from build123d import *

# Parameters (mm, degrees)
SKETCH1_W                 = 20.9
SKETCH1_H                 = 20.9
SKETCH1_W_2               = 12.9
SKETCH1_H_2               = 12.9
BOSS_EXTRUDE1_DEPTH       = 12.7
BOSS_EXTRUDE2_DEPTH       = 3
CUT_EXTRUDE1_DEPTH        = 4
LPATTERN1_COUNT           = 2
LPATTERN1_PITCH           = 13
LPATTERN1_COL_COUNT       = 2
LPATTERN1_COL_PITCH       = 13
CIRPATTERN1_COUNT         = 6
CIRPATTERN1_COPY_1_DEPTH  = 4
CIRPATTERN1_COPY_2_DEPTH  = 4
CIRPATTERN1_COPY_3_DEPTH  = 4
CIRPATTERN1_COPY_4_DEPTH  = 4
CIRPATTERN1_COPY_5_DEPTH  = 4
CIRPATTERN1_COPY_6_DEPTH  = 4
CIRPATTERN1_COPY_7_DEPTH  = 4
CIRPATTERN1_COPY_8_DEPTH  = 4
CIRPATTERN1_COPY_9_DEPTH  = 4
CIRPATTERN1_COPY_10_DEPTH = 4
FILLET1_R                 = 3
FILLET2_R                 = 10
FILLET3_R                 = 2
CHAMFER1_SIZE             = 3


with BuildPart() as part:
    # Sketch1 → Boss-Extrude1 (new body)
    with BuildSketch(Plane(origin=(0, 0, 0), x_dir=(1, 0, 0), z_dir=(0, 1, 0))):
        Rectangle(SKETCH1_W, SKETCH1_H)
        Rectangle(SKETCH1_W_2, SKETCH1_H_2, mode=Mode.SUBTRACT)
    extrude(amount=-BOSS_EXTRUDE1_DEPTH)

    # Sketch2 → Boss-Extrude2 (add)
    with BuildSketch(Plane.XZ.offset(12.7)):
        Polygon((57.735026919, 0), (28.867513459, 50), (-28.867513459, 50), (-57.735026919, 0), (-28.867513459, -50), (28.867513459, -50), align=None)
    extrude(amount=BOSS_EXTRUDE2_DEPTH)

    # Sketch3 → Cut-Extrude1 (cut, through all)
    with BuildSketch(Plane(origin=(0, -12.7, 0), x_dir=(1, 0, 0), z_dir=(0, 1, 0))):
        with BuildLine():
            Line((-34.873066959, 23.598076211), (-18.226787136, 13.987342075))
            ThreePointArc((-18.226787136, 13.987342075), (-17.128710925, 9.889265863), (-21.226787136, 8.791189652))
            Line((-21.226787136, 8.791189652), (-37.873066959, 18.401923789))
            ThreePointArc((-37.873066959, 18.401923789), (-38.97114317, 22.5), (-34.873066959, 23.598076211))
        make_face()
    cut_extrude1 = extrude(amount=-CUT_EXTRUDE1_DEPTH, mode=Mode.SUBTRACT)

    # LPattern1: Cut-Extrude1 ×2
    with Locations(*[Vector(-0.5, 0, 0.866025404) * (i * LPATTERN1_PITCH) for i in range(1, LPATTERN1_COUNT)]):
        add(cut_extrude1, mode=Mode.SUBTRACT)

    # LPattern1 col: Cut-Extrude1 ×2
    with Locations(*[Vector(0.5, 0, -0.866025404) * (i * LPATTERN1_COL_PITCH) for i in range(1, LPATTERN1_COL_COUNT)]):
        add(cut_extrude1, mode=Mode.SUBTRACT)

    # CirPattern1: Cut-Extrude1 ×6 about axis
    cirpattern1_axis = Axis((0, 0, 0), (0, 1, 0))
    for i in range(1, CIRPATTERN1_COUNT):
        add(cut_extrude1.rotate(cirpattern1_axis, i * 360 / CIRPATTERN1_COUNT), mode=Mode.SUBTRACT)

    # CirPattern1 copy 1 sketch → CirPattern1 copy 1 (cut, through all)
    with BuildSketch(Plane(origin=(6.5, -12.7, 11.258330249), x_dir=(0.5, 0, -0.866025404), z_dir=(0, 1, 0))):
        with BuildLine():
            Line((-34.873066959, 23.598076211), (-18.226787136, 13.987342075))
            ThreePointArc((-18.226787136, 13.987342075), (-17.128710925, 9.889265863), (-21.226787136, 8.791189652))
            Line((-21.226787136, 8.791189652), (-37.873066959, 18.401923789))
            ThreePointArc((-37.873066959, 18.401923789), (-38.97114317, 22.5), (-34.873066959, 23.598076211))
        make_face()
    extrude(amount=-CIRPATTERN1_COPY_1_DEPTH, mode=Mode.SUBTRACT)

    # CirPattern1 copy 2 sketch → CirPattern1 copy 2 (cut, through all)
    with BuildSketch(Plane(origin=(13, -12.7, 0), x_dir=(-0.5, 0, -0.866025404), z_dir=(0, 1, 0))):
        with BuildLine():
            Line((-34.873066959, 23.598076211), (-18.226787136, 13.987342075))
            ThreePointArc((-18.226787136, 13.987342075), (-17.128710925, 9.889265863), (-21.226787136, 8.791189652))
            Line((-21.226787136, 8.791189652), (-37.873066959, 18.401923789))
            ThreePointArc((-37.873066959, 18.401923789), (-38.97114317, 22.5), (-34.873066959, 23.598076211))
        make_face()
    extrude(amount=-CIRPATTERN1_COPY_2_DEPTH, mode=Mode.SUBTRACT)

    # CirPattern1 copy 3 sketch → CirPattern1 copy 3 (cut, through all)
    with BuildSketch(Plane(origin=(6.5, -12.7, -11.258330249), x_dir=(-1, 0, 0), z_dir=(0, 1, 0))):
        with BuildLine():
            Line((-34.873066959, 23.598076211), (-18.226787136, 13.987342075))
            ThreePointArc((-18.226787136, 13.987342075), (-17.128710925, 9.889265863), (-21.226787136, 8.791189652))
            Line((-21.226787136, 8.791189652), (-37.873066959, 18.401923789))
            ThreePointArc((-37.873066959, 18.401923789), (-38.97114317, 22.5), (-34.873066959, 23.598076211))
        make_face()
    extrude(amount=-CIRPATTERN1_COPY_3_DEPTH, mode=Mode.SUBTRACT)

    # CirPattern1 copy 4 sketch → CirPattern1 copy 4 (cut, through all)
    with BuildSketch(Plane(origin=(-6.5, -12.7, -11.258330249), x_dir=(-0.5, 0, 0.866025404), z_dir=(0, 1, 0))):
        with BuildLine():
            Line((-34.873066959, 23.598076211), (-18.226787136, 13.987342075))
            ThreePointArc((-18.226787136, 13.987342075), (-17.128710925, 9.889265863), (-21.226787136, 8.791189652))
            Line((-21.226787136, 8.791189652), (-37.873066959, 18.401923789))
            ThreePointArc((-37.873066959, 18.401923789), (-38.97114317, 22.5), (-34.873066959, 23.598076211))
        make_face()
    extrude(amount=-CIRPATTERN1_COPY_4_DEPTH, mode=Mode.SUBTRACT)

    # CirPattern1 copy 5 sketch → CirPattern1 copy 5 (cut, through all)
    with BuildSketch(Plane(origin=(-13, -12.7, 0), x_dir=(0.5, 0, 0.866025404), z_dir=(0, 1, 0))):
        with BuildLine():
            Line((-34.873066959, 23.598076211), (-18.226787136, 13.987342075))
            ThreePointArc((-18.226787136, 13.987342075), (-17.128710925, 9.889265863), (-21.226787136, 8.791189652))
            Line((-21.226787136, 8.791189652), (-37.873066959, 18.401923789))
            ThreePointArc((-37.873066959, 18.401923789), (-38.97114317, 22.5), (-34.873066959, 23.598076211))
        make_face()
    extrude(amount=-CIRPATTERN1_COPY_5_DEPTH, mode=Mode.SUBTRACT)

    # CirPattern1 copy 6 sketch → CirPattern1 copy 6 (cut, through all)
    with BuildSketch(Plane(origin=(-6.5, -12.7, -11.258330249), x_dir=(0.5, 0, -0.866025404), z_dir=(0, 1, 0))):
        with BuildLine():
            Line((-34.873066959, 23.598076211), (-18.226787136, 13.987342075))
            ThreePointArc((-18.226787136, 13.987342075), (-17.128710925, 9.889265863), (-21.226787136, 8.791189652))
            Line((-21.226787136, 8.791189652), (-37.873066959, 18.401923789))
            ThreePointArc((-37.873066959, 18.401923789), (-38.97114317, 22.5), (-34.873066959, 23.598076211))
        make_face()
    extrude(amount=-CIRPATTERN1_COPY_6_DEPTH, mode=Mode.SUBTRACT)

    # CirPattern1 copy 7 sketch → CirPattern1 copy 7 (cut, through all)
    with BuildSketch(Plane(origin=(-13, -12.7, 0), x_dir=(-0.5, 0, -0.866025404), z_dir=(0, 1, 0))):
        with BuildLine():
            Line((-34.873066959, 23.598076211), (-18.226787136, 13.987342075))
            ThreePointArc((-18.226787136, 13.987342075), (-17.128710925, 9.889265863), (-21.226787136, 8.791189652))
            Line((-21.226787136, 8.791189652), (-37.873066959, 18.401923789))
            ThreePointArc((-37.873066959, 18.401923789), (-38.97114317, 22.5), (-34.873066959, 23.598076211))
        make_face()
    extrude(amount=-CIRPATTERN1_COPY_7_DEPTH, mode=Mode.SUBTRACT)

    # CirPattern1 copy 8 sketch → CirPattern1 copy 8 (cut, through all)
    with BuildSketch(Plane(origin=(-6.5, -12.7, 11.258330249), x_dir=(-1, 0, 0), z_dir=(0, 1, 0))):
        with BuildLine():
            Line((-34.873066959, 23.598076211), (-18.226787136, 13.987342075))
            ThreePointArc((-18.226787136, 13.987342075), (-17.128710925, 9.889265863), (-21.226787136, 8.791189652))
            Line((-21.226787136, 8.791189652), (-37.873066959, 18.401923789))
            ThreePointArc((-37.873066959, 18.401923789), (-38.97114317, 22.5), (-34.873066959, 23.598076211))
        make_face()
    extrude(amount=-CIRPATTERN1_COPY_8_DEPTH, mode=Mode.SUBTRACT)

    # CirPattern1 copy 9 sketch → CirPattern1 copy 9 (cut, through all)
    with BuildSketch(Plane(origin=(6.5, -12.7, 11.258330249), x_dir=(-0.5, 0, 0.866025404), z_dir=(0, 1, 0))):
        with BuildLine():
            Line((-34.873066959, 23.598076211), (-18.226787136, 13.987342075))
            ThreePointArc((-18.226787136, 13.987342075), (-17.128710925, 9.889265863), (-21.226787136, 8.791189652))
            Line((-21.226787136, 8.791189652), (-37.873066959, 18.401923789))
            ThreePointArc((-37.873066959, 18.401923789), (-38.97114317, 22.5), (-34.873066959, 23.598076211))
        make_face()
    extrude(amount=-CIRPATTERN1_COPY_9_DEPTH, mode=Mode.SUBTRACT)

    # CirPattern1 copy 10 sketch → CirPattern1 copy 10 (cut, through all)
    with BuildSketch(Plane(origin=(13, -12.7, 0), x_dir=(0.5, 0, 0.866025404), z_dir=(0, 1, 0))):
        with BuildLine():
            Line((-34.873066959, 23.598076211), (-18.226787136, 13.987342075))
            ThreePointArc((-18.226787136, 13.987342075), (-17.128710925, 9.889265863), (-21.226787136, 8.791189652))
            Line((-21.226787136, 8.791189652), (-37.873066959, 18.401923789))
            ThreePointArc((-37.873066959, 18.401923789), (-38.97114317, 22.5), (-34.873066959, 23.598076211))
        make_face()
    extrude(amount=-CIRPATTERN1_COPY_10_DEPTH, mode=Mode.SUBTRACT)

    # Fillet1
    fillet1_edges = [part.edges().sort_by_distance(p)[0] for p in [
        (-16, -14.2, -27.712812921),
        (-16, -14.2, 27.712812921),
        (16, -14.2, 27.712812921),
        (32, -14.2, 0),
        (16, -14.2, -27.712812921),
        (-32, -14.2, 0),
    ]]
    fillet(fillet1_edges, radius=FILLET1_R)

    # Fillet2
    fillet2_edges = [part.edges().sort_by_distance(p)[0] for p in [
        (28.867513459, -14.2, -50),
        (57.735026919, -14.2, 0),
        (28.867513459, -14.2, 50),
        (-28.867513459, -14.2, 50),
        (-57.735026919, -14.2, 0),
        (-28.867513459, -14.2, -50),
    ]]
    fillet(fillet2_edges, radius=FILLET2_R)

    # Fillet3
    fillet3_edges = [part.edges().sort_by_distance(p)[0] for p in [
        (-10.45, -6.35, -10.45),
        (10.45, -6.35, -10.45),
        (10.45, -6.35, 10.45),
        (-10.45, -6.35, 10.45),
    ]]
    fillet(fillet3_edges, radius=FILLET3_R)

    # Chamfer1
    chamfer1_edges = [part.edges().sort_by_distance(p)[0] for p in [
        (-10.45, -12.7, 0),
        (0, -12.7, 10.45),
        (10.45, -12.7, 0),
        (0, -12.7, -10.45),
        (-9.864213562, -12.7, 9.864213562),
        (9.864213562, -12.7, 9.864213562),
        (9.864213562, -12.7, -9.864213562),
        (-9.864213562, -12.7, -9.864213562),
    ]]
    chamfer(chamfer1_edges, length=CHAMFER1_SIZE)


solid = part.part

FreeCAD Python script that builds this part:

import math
import FreeCAD as App
import Part
import Sketcher
Q = App.Units.Quantity


def edges_at(feature, points):
    """Names of the edges that pass closest to the given points."""
    edges = feature.Shape.Edges
    near = lambda p: min(range(len(edges)), key=lambda i: edges[i].distToShape(Part.Vertex(*p))[0])
    return sorted({f"Edge{near(p) + 1}" for p in points})

doc = App.newDocument("Part")
body = doc.addObject("PartDesign::Body", "Body")

sketch1 = body.newObject("Sketcher::SketchObject", "Sketch")
sketch1.AttachmentSupport = (doc.getObject("XZ_Plane"), [""])
sketch1.MapMode = "FlatFace"
sketch1.addGeometry([
    Part.LineSegment(App.Vector(-10, -10, 0), App.Vector(-10, 10, 0)),
    Part.LineSegment(App.Vector(-10, 10, 0), App.Vector(10, 10, 0)),
    Part.LineSegment(App.Vector(10, 10, 0), App.Vector(10, -10, 0)),
    Part.LineSegment(App.Vector(10, -10, 0), App.Vector(-10, -10, 0)),
    Part.LineSegment(App.Vector(6, 6, 0), App.Vector(-6, 6, 0)),
    Part.LineSegment(App.Vector(-6, 6, 0), App.Vector(-6, -6, 0)),
    Part.LineSegment(App.Vector(-6, -6, 0), App.Vector(6, -6, 0)),
    Part.LineSegment(App.Vector(6, -6, 0), App.Vector(6, 6, 0)),
], False)
sketch1.addConstraint([
    Sketcher.Constraint("Coincident", 0, 2, 1, 1),
    Sketcher.Constraint("Coincident", 1, 2, 2, 1),
    Sketcher.Constraint("Coincident", 2, 2, 3, 1),
    Sketcher.Constraint("Coincident", 3, 2, 0, 1),
    Sketcher.Constraint("Coincident", 4, 2, 5, 1),
    Sketcher.Constraint("Coincident", 5, 2, 6, 1),
    Sketcher.Constraint("Coincident", 6, 2, 7, 1),
    Sketcher.Constraint("Coincident", 7, 2, 4, 1),
    Sketcher.Constraint("Vertical", 0),
    Sketcher.Constraint("Horizontal", 1),
    Sketcher.Constraint("Vertical", 2),
    Sketcher.Constraint("Horizontal", 3),
    Sketcher.Constraint("Horizontal", 4),
    Sketcher.Constraint("Vertical", 5),
    Sketcher.Constraint("Horizontal", 6),
    Sketcher.Constraint("Vertical", 7),
    Sketcher.Constraint("Symmetric", 0, 2, 2, 2, -1, 1),
    Sketcher.Constraint("Symmetric", 4, 2, 6, 2, -1, 1),
    Sketcher.Constraint("Equal", 3, 0),
    Sketcher.Constraint("Equal", 6, 5),
    Sketcher.Constraint("DistanceX", 1, 1, 1, 2, 20.9),
    Sketcher.Constraint("DistanceX", 4, 2, 4, 1, 12.9),
])
pad1 = body.newObject("PartDesign::Pad", "Pad")
pad1.Profile = sketch1
pad1.Length = 12.7

sketch2 = body.newObject("Sketcher::SketchObject", "Sketch001")
sketch2.AttachmentSupport = (doc.getObject("XZ_Plane"), [""])
sketch2.MapMode = "FlatFace"
sketch2.AttachmentOffset = App.Placement(App.Vector(0, 0, 12.7), App.Rotation())
sketch2.addGeometry([
    Part.LineSegment(App.Vector(58, 0, 0), App.Vector(29, 50, 0)),
    Part.LineSegment(App.Vector(29, 50, 0), App.Vector(-29, 50, 0)),
    Part.LineSegment(App.Vector(-29, 50, 0), App.Vector(-58, 0, 0)),
    Part.LineSegment(App.Vector(-58, 0, 0), App.Vector(-29, -50, 0)),
    Part.LineSegment(App.Vector(-29, -50, 0), App.Vector(29, -50, 0)),
    Part.LineSegment(App.Vector(29, -50, 0), App.Vector(58, 0, 0)),
], False)
sketch2.addConstraint([
    Sketcher.Constraint("Coincident", 0, 2, 1, 1),
    Sketcher.Constraint("Coincident", 1, 2, 2, 1),
    Sketcher.Constraint("Coincident", 2, 2, 3, 1),
    Sketcher.Constraint("Coincident", 3, 2, 4, 1),
    Sketcher.Constraint("Coincident", 4, 2, 5, 1),
    Sketcher.Constraint("Coincident", 5, 2, 0, 1),
    Sketcher.Constraint("Horizontal", 1),
    Sketcher.Constraint("Horizontal", 4),
    Sketcher.Constraint("Symmetric", 0, 2, 3, 2, -1, 1),
    Sketcher.Constraint("Symmetric", 2, 2, 5, 2, -1, 1),
    Sketcher.Constraint("PointOnObject", 2, 2, -1),
    Sketcher.Constraint("Parallel", 2, 5),
    Sketcher.Constraint("Vertical", 1, 2, 3, 2),
    Sketcher.Constraint("Angle", 0, Q("120 deg")),
    Sketcher.Constraint("DistanceY", -1, 1, 0, 2, 50.0),
    Sketcher.Constraint("DistanceX", 1, 2, 1, 1, 57.735027),
])
pad2 = body.newObject("PartDesign::Pad", "Pad001")
pad2.Profile = sketch2
pad2.Length = 3

sketch3 = body.newObject("Sketcher::SketchObject", "Sketch002")
sketch3.AttachmentSupport = (doc.getObject("XZ_Plane"), [""])
sketch3.MapMode = "FlatFace"
sketch3.AttachmentOffset = App.Placement(App.Vector(0, 0, 12.7), App.Rotation())
sketch3.addGeometry([
    Part.LineSegment(App.Vector(-18.2, -14, 0), App.Vector(-34.9, -23.6, 0)),
    Part.ArcOfCircle(Part.Circle(App.Vector(-36.4, -21, 0), App.Vector(0, 0, 1), 3), math.radians(120), math.radians(300)),
    Part.LineSegment(App.Vector(-37.9, -18.4, 0), App.Vector(-21.2, -8.8, 0)),
    Part.ArcOfCircle(Part.Circle(App.Vector(-19.7, -11.4, 0), App.Vector(0, 0, 1), 3), math.radians(-60), math.radians(120)),
], False)
sketch3.addConstraint([
    Sketcher.Constraint("Tangent", 0, 2, 1, 2),
    Sketcher.Constraint("Tangent", 1, 1, 2, 1),
    Sketcher.Constraint("Tangent", 2, 2, 3, 2),
    Sketcher.Constraint("Tangent", 3, 1, 0, 1),
    Sketcher.Constraint("Equal", 1, 3),
    Sketcher.Constraint("Radius", 1, 3.0),
    Sketcher.Constraint("Angle", 0, Q("-150 deg")),
    Sketcher.Constraint("DistanceY", 1, 3, -1, 1, 21.0),
    Sketcher.Constraint("Distance", 0, 19.221468),
    Sketcher.Constraint("DistanceX", 1, 3, -1, 1, 36.373067),
])
pocket1 = body.newObject("PartDesign::Pocket", "Pocket")
pocket1.Profile = sketch3
pocket1.Type = "ThroughAll"
pocket1.Reversed = True
doc.recompute()

datumline = body.newObject("PartDesign::Line", "DatumLine")
datumline.Placement = App.Placement(App.Vector(0, 0, 0), App.Rotation(App.Vector(0, 0, 1), App.Vector(-0.5, 0, 0.866025404)))
linearpattern = body.newObject("PartDesign::LinearPattern", "LinearPattern")
linearpattern.Originals = [pocket1]
linearpattern.Direction = (datumline, [""])
linearpattern.Mode = "offset"
linearpattern.Offset = 13
linearpattern.Occurrences = 2
body.Tip = linearpattern
doc.recompute()

datumline2 = body.newObject("PartDesign::Line", "DatumLine001")
datumline2.Placement = App.Placement(App.Vector(0, 0, 0), App.Rotation(App.Vector(0, 0, 1), App.Vector(0.5, 0, -0.866025404)))
linearpattern2 = body.newObject("PartDesign::LinearPattern", "LinearPattern001")
linearpattern2.Originals = [pocket1]
linearpattern2.Direction = (datumline2, [""])
linearpattern2.Mode = "offset"
linearpattern2.Offset = 13
linearpattern2.Occurrences = 2
body.Tip = linearpattern2
doc.recompute()

polarpattern = body.newObject("PartDesign::PolarPattern", "PolarPattern")
polarpattern.Originals = [pocket1]
polarpattern.Axis = (doc.getObject("Y_Axis"), [""])
polarpattern.Angle = 360
polarpattern.Occurrences = 6
body.Tip = polarpattern

sketch4 = body.newObject("Sketcher::SketchObject", "Sketch003")
sketch4.AttachmentSupport = (doc.getObject("XZ_Plane"), [""])
sketch4.MapMode = "FlatFace"
sketch4.AttachmentOffset = App.Placement(App.Vector(0, 0, 12.7), App.Rotation())
sketch4.addGeometry([
    Part.LineSegment(App.Vector(-14.7, 20, 0), App.Vector(-31.4, 29.7, 0)),
    Part.ArcOfCircle(Part.Circle(App.Vector(-29.9, 32.3, 0), App.Vector(0, 0, 1), 3), math.radians(60), math.radians(240)),
    Part.LineSegment(App.Vector(-28.4, 34.9, 0), App.Vector(-11.7, 25.2, 0)),
    Part.ArcOfCircle(Part.Circle(App.Vector(-13.2, 22.6, 0), App.Vector(0, 0, 1), 3), math.radians(-120), math.radians(60)),
], False)
sketch4.addConstraint([
    Sketcher.Constraint("Tangent", 0, 2, 1, 2),
    Sketcher.Constraint("Tangent", 1, 1, 2, 1),
    Sketcher.Constraint("Tangent", 2, 2, 3, 2),
    Sketcher.Constraint("Tangent", 3, 1, 0, 1),
    Sketcher.Constraint("Equal", 1, 3),
    Sketcher.Constraint("Radius", 1, 3.0),
    Sketcher.Constraint("Angle", 0, Q("150 deg")),
    Sketcher.Constraint("Distance", 0, 19.221468),
    Sketcher.Constraint("DistanceY", -1, 1, 1, 3, 32.25833),
    Sketcher.Constraint("DistanceX", 1, 3, -1, 1, 29.873067),
])
pocket2 = body.newObject("PartDesign::Pocket", "Pocket001")
pocket2.Profile = sketch4
pocket2.Type = "ThroughAll"
pocket2.Reversed = True

sketch5 = body.newObject("Sketcher::SketchObject", "Sketch004")
sketch5.AttachmentSupport = (doc.getObject("XZ_Plane"), [""])
sketch5.MapMode = "FlatFace"
sketch5.AttachmentOffset = App.Placement(App.Vector(0, 0, 12.7), App.Rotation())
sketch5.addGeometry([
    Part.LineSegment(App.Vector(10, 22.8, 0), App.Vector(10, 42, 0)),
    Part.ArcOfCircle(Part.Circle(App.Vector(13, 42, 0), App.Vector(0, 0, 1), 3), math.radians(0), math.radians(180)),
    Part.LineSegment(App.Vector(16, 42, 0), App.Vector(16, 22.8, 0)),
    Part.ArcOfCircle(Part.Circle(App.Vector(13, 22.8, 0), App.Vector(0, 0, 1), 3), math.radians(180), math.radians(360)),
], False)
sketch5.addConstraint([
    Sketcher.Constraint("Tangent", 0, 2, 1, 2),
    Sketcher.Constraint("Tangent", 1, 1, 2, 1),
    Sketcher.Constraint("Tangent", 2, 2, 3, 2),
    Sketcher.Constraint("Tangent", 3, 1, 0, 1),
    Sketcher.Constraint("Vertical", 0),
    Sketcher.Constraint("Vertical", 2),
    Sketcher.Constraint("Radius", 1, 3.0),
    Sketcher.Constraint("DistanceX", -1, 1, 1, 3, 13.0),
    Sketcher.Constraint("DistanceY", -1, 1, 1, 3, 42.0),
    Sketcher.Constraint("DistanceY", 0, 1, 0, 2, 19.221468),
])
pocket3 = body.newObject("PartDesign::Pocket", "Pocket002")
pocket3.Profile = sketch5
pocket3.Type = "ThroughAll"
pocket3.Reversed = True

sketch6 = body.newObject("Sketcher::SketchObject", "Sketch005")
sketch6.AttachmentSupport = (doc.getObject("XZ_Plane"), [""])
sketch6.MapMode = "FlatFace"
sketch6.AttachmentOffset = App.Placement(App.Vector(0, 0, 12.7), App.Rotation())
sketch6.addGeometry([
    Part.LineSegment(App.Vector(24.7, 2.7, 0), App.Vector(41.4, 12.3, 0)),
    Part.ArcOfCircle(Part.Circle(App.Vector(42.9, 9.7, 0), App.Vector(0, 0, 1), 3), math.radians(-60), math.radians(120)),
    Part.LineSegment(App.Vector(44.4, 7.1, 0), App.Vector(27.7, -2.5, 0)),
    Part.ArcOfCircle(Part.Circle(App.Vector(26.2, 0.1, 0), App.Vector(0, 0, 1), 3), math.radians(120), math.radians(300)),
], False)
sketch6.addConstraint([
    Sketcher.Constraint("Tangent", 0, 2, 1, 2),
    Sketcher.Constraint("Tangent", 1, 1, 2, 1),
    Sketcher.Constraint("Tangent", 2, 2, 3, 2),
    Sketcher.Constraint("Tangent", 3, 1, 0, 1),
    Sketcher.Constraint("Equal", 1, 3),
    Sketcher.Constraint("Radius", 1, 3.0),
    Sketcher.Constraint("Angle", 0, Q("30 deg")),
    Sketcher.Constraint("Distance", 0, 19.221468),
    Sketcher.Constraint("DistanceY", -1, 1, 1, 3, 9.74167),
    Sketcher.Constraint("DistanceX", -1, 1, 1, 3, 42.873067),
])
pocket4 = body.newObject("PartDesign::Pocket", "Pocket003")
pocket4.Profile = sketch6
pocket4.Type = "ThroughAll"
pocket4.Reversed = True

sketch7 = body.newObject("Sketcher::SketchObject", "Sketch006")
sketch7.AttachmentSupport = (doc.getObject("XZ_Plane"), [""])
sketch7.MapMode = "FlatFace"
sketch7.AttachmentOffset = App.Placement(App.Vector(0, 0, 12.7), App.Rotation())
sketch7.addGeometry([
    Part.LineSegment(App.Vector(14.7, -20, 0), App.Vector(31.4, -29.7, 0)),
    Part.ArcOfCircle(Part.Circle(App.Vector(29.9, -32.3, 0), App.Vector(0, 0, 1), 3), math.radians(-120), math.radians(60)),
    Part.LineSegment(App.Vector(28.4, -34.9, 0), App.Vector(11.7, -25.2, 0)),
    Part.ArcOfCircle(Part.Circle(App.Vector(13.2, -22.6, 0), App.Vector(0, 0, 1), 3), math.radians(60), math.radians(240)),
], False)
sketch7.addConstraint([
    Sketcher.Constraint("Tangent", 0, 2, 1, 2),
    Sketcher.Constraint("Tangent", 1, 1, 2, 1),
    Sketcher.Constraint("Tangent", 2, 2, 3, 2),
    Sketcher.Constraint("Tangent", 3, 1, 0, 1),
    Sketcher.Constraint("Equal", 1, 3),
    Sketcher.Constraint("Radius", 1, 3.0),
    Sketcher.Constraint("Angle", 0, Q("-30 deg")),
    Sketcher.Constraint("Distance", 0, 19.221468),
    Sketcher.Constraint("DistanceY", 1, 3, -1, 1, 32.25833),
    Sketcher.Constraint("DistanceX", -1, 1, 1, 3, 29.873067),
])
pocket5 = body.newObject("PartDesign::Pocket", "Pocket004")
pocket5.Profile = sketch7
pocket5.Type = "ThroughAll"
pocket5.Reversed = True

sketch8 = body.newObject("Sketcher::SketchObject", "Sketch007")
sketch8.AttachmentSupport = (doc.getObject("XZ_Plane"), [""])
sketch8.MapMode = "FlatFace"
sketch8.AttachmentOffset = App.Placement(App.Vector(0, 0, 12.7), App.Rotation())
sketch8.addGeometry([
    Part.LineSegment(App.Vector(-10, -22.8, 0), App.Vector(-10, -42, 0)),
    Part.ArcOfCircle(Part.Circle(App.Vector(-13, -42, 0), App.Vector(0, 0, 1), 3), math.radians(180), math.radians(360)),
    Part.LineSegment(App.Vector(-16, -42, 0), App.Vector(-16, -22.8, 0)),
    Part.ArcOfCircle(Part.Circle(App.Vector(-13, -22.8, 0), App.Vector(0, 0, 1), 3), math.radians(0), math.radians(180)),
], False)
sketch8.addConstraint([
    Sketcher.Constraint("Tangent", 0, 2, 1, 2),
    Sketcher.Constraint("Tangent", 1, 1, 2, 1),
    Sketcher.Constraint("Tangent", 2, 2, 3, 2),
    Sketcher.Constraint("Tangent", 3, 1, 0, 1),
    Sketcher.Constraint("Vertical", 0),
    Sketcher.Constraint("Vertical", 2),
    Sketcher.Constraint("Radius", 1, 3.0),
    Sketcher.Constraint("DistanceX", 1, 3, -1, 1, 13.0),
    Sketcher.Constraint("DistanceY", 1, 3, -1, 1, 42.0),
    Sketcher.Constraint("DistanceY", 0, 2, 0, 1, 19.221468),
])
pocket6 = body.newObject("PartDesign::Pocket", "Pocket005")
pocket6.Profile = sketch8
pocket6.Type = "ThroughAll"
pocket6.Reversed = True

sketch9 = body.newObject("Sketcher::SketchObject", "Sketch008")
sketch9.AttachmentSupport = (doc.getObject("XZ_Plane"), [""])
sketch9.MapMode = "FlatFace"
sketch9.AttachmentOffset = App.Placement(App.Vector(0, 0, 12.7), App.Rotation())
sketch9.addGeometry([
    Part.LineSegment(App.Vector(-27.7, -2.5, 0), App.Vector(-44.4, 7.1, 0)),
    Part.ArcOfCircle(Part.Circle(App.Vector(-42.9, 9.7, 0), App.Vector(0, 0, 1), 3), math.radians(60), math.radians(240)),
    Part.LineSegment(App.Vector(-41.4, 12.3, 0), App.Vector(-24.7, 2.7, 0)),
    Part.ArcOfCircle(Part.Circle(App.Vector(-26.2, 0.1, 0), App.Vector(0, 0, 1), 3), math.radians(-120), math.radians(60)),
], False)
sketch9.addConstraint([
    Sketcher.Constraint("Tangent", 0, 2, 1, 2),
    Sketcher.Constraint("Tangent", 1, 1, 2, 1),
    Sketcher.Constraint("Tangent", 2, 2, 3, 2),
    Sketcher.Constraint("Tangent", 3, 1, 0, 1),
    Sketcher.Constraint("Equal", 1, 3),
    Sketcher.Constraint("Radius", 1, 3.0),
    Sketcher.Constraint("Angle", 0, Q("150 deg")),
    Sketcher.Constraint("Distance", 0, 19.221468),
    Sketcher.Constraint("DistanceY", -1, 1, 1, 3, 9.74167),
    Sketcher.Constraint("DistanceX", 1, 3, -1, 1, 42.873067),
])
pocket7 = body.newObject("PartDesign::Pocket", "Pocket006")
pocket7.Profile = sketch9
pocket7.Type = "ThroughAll"
pocket7.Reversed = True

sketch10 = body.newObject("Sketcher::SketchObject", "Sketch009")
sketch10.AttachmentSupport = (doc.getObject("XZ_Plane"), [""])
sketch10.MapMode = "FlatFace"
sketch10.AttachmentOffset = App.Placement(App.Vector(0, 0, 12.7), App.Rotation())
sketch10.addGeometry([
    Part.LineSegment(App.Vector(-16, 22.8, 0), App.Vector(-16, 42, 0)),
    Part.ArcOfCircle(Part.Circle(App.Vector(-13, 42, 0), App.Vector(0, 0, 1), 3), math.radians(0), math.radians(180)),
    Part.LineSegment(App.Vector(-10, 42, 0), App.Vector(-10, 22.8, 0)),
    Part.ArcOfCircle(Part.Circle(App.Vector(-13, 22.8, 0), App.Vector(0, 0, 1), 3), math.radians(180), math.radians(360)),
], False)
sketch10.addConstraint([
    Sketcher.Constraint("Tangent", 0, 2, 1, 2),
    Sketcher.Constraint("Tangent", 1, 1, 2, 1),
    Sketcher.Constraint("Tangent", 2, 2, 3, 2),
    Sketcher.Constraint("Tangent", 3, 1, 0, 1),
    Sketcher.Constraint("Vertical", 0),
    Sketcher.Constraint("Vertical", 2),
    Sketcher.Constraint("Radius", 1, 3.0),
    Sketcher.Constraint("DistanceX", 1, 3, -1, 1, 13.0),
    Sketcher.Constraint("DistanceY", -1, 1, 1, 3, 42.0),
    Sketcher.Constraint("DistanceY", 0, 1, 0, 2, 19.221468),
])
pocket8 = body.newObject("PartDesign::Pocket", "Pocket007")
pocket8.Profile = sketch10
pocket8.Type = "ThroughAll"
pocket8.Reversed = True

sketch11 = body.newObject("Sketcher::SketchObject", "Sketch010")
sketch11.AttachmentSupport = (doc.getObject("XZ_Plane"), [""])
sketch11.MapMode = "FlatFace"
sketch11.AttachmentOffset = App.Placement(App.Vector(0, 0, 12.7), App.Rotation())
sketch11.addGeometry([
    Part.LineSegment(App.Vector(11.7, 25.2, 0), App.Vector(28.4, 34.9, 0)),
    Part.ArcOfCircle(Part.Circle(App.Vector(29.9, 32.3, 0), App.Vector(0, 0, 1), 3), math.radians(-60), math.radians(120)),
    Part.LineSegment(App.Vector(31.4, 29.7, 0), App.Vector(14.7, 20, 0)),
    Part.ArcOfCircle(Part.Circle(App.Vector(13.2, 22.6, 0), App.Vector(0, 0, 1), 3), math.radians(120), math.radians(300)),
], False)
sketch11.addConstraint([
    Sketcher.Constraint("Tangent", 0, 2, 1, 2),
    Sketcher.Constraint("Tangent", 1, 1, 2, 1),
    Sketcher.Constraint("Tangent", 2, 2, 3, 2),
    Sketcher.Constraint("Tangent", 3, 1, 0, 1),
    Sketcher.Constraint("Equal", 1, 3),
    Sketcher.Constraint("Radius", 1, 3.0),
    Sketcher.Constraint("Angle", 0, Q("30 deg")),
    Sketcher.Constraint("Distance", 0, 19.221468),
    Sketcher.Constraint("DistanceY", -1, 1, 1, 3, 32.25833),
    Sketcher.Constraint("DistanceX", -1, 1, 1, 3, 29.873067),
])
pocket9 = body.newObject("PartDesign::Pocket", "Pocket008")
pocket9.Profile = sketch11
pocket9.Type = "ThroughAll"
pocket9.Reversed = True

sketch12 = body.newObject("Sketcher::SketchObject", "Sketch011")
sketch12.AttachmentSupport = (doc.getObject("XZ_Plane"), [""])
sketch12.MapMode = "FlatFace"
sketch12.AttachmentOffset = App.Placement(App.Vector(0, 0, 12.7), App.Rotation())
sketch12.addGeometry([
    Part.LineSegment(App.Vector(27.7, 2.5, 0), App.Vector(44.4, -7.1, 0)),
    Part.ArcOfCircle(Part.Circle(App.Vector(42.9, -9.7, 0), App.Vector(0, 0, 1), 3), math.radians(-120), math.radians(60)),
    Part.LineSegment(App.Vector(41.4, -12.3, 0), App.Vector(24.7, -2.7, 0)),
    Part.ArcOfCircle(Part.Circle(App.Vector(26.2, -0.1, 0), App.Vector(0, 0, 1), 3), math.radians(60), math.radians(240)),
], False)
sketch12.addConstraint([
    Sketcher.Constraint("Tangent", 0, 2, 1, 2),
    Sketcher.Constraint("Tangent", 1, 1, 2, 1),
    Sketcher.Constraint("Tangent", 2, 2, 3, 2),
    Sketcher.Constraint("Tangent", 3, 1, 0, 1),
    Sketcher.Constraint("Equal", 1, 3),
    Sketcher.Constraint("Radius", 1, 3.0),
    Sketcher.Constraint("Angle", 0, Q("-30 deg")),
    Sketcher.Constraint("Distance", 0, 19.221468),
    Sketcher.Constraint("DistanceY", 1, 3, -1, 1, 9.74167),
    Sketcher.Constraint("DistanceX", -1, 1, 1, 3, 42.873067),
])
pocket10 = body.newObject("PartDesign::Pocket", "Pocket009")
pocket10.Profile = sketch12
pocket10.Type = "ThroughAll"
pocket10.Reversed = True

sketch13 = body.newObject("Sketcher::SketchObject", "Sketch012")
sketch13.AttachmentSupport = (doc.getObject("XZ_Plane"), [""])
sketch13.MapMode = "FlatFace"
sketch13.AttachmentOffset = App.Placement(App.Vector(0, 0, 12.7), App.Rotation())
sketch13.addGeometry([
    Part.LineSegment(App.Vector(16, -22.8, 0), App.Vector(16, -42, 0)),
    Part.ArcOfCircle(Part.Circle(App.Vector(13, -42, 0), App.Vector(0, 0, 1), 3), math.radians(180), math.radians(360)),
    Part.LineSegment(App.Vector(10, -42, 0), App.Vector(10, -22.8, 0)),
    Part.ArcOfCircle(Part.Circle(App.Vector(13, -22.8, 0), App.Vector(0, 0, 1), 3), math.radians(0), math.radians(180)),
], False)
sketch13.addConstraint([
    Sketcher.Constraint("Tangent", 0, 2, 1, 2),
    Sketcher.Constraint("Tangent", 1, 1, 2, 1),
    Sketcher.Constraint("Tangent", 2, 2, 3, 2),
    Sketcher.Constraint("Tangent", 3, 1, 0, 1),
    Sketcher.Constraint("Vertical", 0),
    Sketcher.Constraint("Vertical", 2),
    Sketcher.Constraint("Radius", 1, 3.0),
    Sketcher.Constraint("DistanceX", -1, 1, 1, 3, 13.0),
    Sketcher.Constraint("DistanceY", 1, 3, -1, 1, 42.0),
    Sketcher.Constraint("DistanceY", 0, 2, 0, 1, 19.221468),
])
pocket11 = body.newObject("PartDesign::Pocket", "Pocket010")
pocket11.Profile = sketch13
pocket11.Type = "ThroughAll"
pocket11.Reversed = True
doc.recompute()

fillet = body.newObject("PartDesign::Fillet", "Fillet")
fillet.Base = (pocket11, edges_at(pocket11, [
    (-16, -14.2, -27.713),
    (-16, -14.2, 27.713),
    (16, -14.2, 27.713),
    (32, -14.2, 0),
    (16, -14.2, -27.713),
    (-32, -14.2, 0),
]))
fillet.Radius = 3
doc.recompute()

fillet2 = body.newObject("PartDesign::Fillet", "Fillet001")
fillet2.Base = (fillet, edges_at(fillet, [
    (28.868, -14.2, -50),
    (57.735, -14.2, 0),
    (28.868, -14.2, 50),
    (-28.868, -14.2, 50),
    (-57.735, -14.2, 0),
    (-28.868, -14.2, -50),
]))
fillet2.Radius = 10
doc.recompute()

fillet3 = body.newObject("PartDesign::Fillet", "Fillet002")
fillet3.Base = (fillet2, edges_at(fillet2, [
    (-10.45, -6.35, -10.45),
    (10.45, -6.35, -10.45),
    (10.45, -6.35, 10.45),
    (-10.45, -6.35, 10.45),
]))
fillet3.Radius = 2
doc.recompute()

chamfer = body.newObject("PartDesign::Chamfer", "Chamfer")
chamfer.Base = (fillet3, edges_at(fillet3, [
    (-10.45, -12.7, 0),
    (0, -12.7, 10.45),
    (10.45, -12.7, 0),
    (0, -12.7, -10.45),
    (-9.864, -12.7, 9.864),
    (9.864, -12.7, 9.864),
    (9.864, -12.7, -9.864),
    (-9.864, -12.7, -9.864),
]))
chamfer.Size = 3

doc.recompute()
